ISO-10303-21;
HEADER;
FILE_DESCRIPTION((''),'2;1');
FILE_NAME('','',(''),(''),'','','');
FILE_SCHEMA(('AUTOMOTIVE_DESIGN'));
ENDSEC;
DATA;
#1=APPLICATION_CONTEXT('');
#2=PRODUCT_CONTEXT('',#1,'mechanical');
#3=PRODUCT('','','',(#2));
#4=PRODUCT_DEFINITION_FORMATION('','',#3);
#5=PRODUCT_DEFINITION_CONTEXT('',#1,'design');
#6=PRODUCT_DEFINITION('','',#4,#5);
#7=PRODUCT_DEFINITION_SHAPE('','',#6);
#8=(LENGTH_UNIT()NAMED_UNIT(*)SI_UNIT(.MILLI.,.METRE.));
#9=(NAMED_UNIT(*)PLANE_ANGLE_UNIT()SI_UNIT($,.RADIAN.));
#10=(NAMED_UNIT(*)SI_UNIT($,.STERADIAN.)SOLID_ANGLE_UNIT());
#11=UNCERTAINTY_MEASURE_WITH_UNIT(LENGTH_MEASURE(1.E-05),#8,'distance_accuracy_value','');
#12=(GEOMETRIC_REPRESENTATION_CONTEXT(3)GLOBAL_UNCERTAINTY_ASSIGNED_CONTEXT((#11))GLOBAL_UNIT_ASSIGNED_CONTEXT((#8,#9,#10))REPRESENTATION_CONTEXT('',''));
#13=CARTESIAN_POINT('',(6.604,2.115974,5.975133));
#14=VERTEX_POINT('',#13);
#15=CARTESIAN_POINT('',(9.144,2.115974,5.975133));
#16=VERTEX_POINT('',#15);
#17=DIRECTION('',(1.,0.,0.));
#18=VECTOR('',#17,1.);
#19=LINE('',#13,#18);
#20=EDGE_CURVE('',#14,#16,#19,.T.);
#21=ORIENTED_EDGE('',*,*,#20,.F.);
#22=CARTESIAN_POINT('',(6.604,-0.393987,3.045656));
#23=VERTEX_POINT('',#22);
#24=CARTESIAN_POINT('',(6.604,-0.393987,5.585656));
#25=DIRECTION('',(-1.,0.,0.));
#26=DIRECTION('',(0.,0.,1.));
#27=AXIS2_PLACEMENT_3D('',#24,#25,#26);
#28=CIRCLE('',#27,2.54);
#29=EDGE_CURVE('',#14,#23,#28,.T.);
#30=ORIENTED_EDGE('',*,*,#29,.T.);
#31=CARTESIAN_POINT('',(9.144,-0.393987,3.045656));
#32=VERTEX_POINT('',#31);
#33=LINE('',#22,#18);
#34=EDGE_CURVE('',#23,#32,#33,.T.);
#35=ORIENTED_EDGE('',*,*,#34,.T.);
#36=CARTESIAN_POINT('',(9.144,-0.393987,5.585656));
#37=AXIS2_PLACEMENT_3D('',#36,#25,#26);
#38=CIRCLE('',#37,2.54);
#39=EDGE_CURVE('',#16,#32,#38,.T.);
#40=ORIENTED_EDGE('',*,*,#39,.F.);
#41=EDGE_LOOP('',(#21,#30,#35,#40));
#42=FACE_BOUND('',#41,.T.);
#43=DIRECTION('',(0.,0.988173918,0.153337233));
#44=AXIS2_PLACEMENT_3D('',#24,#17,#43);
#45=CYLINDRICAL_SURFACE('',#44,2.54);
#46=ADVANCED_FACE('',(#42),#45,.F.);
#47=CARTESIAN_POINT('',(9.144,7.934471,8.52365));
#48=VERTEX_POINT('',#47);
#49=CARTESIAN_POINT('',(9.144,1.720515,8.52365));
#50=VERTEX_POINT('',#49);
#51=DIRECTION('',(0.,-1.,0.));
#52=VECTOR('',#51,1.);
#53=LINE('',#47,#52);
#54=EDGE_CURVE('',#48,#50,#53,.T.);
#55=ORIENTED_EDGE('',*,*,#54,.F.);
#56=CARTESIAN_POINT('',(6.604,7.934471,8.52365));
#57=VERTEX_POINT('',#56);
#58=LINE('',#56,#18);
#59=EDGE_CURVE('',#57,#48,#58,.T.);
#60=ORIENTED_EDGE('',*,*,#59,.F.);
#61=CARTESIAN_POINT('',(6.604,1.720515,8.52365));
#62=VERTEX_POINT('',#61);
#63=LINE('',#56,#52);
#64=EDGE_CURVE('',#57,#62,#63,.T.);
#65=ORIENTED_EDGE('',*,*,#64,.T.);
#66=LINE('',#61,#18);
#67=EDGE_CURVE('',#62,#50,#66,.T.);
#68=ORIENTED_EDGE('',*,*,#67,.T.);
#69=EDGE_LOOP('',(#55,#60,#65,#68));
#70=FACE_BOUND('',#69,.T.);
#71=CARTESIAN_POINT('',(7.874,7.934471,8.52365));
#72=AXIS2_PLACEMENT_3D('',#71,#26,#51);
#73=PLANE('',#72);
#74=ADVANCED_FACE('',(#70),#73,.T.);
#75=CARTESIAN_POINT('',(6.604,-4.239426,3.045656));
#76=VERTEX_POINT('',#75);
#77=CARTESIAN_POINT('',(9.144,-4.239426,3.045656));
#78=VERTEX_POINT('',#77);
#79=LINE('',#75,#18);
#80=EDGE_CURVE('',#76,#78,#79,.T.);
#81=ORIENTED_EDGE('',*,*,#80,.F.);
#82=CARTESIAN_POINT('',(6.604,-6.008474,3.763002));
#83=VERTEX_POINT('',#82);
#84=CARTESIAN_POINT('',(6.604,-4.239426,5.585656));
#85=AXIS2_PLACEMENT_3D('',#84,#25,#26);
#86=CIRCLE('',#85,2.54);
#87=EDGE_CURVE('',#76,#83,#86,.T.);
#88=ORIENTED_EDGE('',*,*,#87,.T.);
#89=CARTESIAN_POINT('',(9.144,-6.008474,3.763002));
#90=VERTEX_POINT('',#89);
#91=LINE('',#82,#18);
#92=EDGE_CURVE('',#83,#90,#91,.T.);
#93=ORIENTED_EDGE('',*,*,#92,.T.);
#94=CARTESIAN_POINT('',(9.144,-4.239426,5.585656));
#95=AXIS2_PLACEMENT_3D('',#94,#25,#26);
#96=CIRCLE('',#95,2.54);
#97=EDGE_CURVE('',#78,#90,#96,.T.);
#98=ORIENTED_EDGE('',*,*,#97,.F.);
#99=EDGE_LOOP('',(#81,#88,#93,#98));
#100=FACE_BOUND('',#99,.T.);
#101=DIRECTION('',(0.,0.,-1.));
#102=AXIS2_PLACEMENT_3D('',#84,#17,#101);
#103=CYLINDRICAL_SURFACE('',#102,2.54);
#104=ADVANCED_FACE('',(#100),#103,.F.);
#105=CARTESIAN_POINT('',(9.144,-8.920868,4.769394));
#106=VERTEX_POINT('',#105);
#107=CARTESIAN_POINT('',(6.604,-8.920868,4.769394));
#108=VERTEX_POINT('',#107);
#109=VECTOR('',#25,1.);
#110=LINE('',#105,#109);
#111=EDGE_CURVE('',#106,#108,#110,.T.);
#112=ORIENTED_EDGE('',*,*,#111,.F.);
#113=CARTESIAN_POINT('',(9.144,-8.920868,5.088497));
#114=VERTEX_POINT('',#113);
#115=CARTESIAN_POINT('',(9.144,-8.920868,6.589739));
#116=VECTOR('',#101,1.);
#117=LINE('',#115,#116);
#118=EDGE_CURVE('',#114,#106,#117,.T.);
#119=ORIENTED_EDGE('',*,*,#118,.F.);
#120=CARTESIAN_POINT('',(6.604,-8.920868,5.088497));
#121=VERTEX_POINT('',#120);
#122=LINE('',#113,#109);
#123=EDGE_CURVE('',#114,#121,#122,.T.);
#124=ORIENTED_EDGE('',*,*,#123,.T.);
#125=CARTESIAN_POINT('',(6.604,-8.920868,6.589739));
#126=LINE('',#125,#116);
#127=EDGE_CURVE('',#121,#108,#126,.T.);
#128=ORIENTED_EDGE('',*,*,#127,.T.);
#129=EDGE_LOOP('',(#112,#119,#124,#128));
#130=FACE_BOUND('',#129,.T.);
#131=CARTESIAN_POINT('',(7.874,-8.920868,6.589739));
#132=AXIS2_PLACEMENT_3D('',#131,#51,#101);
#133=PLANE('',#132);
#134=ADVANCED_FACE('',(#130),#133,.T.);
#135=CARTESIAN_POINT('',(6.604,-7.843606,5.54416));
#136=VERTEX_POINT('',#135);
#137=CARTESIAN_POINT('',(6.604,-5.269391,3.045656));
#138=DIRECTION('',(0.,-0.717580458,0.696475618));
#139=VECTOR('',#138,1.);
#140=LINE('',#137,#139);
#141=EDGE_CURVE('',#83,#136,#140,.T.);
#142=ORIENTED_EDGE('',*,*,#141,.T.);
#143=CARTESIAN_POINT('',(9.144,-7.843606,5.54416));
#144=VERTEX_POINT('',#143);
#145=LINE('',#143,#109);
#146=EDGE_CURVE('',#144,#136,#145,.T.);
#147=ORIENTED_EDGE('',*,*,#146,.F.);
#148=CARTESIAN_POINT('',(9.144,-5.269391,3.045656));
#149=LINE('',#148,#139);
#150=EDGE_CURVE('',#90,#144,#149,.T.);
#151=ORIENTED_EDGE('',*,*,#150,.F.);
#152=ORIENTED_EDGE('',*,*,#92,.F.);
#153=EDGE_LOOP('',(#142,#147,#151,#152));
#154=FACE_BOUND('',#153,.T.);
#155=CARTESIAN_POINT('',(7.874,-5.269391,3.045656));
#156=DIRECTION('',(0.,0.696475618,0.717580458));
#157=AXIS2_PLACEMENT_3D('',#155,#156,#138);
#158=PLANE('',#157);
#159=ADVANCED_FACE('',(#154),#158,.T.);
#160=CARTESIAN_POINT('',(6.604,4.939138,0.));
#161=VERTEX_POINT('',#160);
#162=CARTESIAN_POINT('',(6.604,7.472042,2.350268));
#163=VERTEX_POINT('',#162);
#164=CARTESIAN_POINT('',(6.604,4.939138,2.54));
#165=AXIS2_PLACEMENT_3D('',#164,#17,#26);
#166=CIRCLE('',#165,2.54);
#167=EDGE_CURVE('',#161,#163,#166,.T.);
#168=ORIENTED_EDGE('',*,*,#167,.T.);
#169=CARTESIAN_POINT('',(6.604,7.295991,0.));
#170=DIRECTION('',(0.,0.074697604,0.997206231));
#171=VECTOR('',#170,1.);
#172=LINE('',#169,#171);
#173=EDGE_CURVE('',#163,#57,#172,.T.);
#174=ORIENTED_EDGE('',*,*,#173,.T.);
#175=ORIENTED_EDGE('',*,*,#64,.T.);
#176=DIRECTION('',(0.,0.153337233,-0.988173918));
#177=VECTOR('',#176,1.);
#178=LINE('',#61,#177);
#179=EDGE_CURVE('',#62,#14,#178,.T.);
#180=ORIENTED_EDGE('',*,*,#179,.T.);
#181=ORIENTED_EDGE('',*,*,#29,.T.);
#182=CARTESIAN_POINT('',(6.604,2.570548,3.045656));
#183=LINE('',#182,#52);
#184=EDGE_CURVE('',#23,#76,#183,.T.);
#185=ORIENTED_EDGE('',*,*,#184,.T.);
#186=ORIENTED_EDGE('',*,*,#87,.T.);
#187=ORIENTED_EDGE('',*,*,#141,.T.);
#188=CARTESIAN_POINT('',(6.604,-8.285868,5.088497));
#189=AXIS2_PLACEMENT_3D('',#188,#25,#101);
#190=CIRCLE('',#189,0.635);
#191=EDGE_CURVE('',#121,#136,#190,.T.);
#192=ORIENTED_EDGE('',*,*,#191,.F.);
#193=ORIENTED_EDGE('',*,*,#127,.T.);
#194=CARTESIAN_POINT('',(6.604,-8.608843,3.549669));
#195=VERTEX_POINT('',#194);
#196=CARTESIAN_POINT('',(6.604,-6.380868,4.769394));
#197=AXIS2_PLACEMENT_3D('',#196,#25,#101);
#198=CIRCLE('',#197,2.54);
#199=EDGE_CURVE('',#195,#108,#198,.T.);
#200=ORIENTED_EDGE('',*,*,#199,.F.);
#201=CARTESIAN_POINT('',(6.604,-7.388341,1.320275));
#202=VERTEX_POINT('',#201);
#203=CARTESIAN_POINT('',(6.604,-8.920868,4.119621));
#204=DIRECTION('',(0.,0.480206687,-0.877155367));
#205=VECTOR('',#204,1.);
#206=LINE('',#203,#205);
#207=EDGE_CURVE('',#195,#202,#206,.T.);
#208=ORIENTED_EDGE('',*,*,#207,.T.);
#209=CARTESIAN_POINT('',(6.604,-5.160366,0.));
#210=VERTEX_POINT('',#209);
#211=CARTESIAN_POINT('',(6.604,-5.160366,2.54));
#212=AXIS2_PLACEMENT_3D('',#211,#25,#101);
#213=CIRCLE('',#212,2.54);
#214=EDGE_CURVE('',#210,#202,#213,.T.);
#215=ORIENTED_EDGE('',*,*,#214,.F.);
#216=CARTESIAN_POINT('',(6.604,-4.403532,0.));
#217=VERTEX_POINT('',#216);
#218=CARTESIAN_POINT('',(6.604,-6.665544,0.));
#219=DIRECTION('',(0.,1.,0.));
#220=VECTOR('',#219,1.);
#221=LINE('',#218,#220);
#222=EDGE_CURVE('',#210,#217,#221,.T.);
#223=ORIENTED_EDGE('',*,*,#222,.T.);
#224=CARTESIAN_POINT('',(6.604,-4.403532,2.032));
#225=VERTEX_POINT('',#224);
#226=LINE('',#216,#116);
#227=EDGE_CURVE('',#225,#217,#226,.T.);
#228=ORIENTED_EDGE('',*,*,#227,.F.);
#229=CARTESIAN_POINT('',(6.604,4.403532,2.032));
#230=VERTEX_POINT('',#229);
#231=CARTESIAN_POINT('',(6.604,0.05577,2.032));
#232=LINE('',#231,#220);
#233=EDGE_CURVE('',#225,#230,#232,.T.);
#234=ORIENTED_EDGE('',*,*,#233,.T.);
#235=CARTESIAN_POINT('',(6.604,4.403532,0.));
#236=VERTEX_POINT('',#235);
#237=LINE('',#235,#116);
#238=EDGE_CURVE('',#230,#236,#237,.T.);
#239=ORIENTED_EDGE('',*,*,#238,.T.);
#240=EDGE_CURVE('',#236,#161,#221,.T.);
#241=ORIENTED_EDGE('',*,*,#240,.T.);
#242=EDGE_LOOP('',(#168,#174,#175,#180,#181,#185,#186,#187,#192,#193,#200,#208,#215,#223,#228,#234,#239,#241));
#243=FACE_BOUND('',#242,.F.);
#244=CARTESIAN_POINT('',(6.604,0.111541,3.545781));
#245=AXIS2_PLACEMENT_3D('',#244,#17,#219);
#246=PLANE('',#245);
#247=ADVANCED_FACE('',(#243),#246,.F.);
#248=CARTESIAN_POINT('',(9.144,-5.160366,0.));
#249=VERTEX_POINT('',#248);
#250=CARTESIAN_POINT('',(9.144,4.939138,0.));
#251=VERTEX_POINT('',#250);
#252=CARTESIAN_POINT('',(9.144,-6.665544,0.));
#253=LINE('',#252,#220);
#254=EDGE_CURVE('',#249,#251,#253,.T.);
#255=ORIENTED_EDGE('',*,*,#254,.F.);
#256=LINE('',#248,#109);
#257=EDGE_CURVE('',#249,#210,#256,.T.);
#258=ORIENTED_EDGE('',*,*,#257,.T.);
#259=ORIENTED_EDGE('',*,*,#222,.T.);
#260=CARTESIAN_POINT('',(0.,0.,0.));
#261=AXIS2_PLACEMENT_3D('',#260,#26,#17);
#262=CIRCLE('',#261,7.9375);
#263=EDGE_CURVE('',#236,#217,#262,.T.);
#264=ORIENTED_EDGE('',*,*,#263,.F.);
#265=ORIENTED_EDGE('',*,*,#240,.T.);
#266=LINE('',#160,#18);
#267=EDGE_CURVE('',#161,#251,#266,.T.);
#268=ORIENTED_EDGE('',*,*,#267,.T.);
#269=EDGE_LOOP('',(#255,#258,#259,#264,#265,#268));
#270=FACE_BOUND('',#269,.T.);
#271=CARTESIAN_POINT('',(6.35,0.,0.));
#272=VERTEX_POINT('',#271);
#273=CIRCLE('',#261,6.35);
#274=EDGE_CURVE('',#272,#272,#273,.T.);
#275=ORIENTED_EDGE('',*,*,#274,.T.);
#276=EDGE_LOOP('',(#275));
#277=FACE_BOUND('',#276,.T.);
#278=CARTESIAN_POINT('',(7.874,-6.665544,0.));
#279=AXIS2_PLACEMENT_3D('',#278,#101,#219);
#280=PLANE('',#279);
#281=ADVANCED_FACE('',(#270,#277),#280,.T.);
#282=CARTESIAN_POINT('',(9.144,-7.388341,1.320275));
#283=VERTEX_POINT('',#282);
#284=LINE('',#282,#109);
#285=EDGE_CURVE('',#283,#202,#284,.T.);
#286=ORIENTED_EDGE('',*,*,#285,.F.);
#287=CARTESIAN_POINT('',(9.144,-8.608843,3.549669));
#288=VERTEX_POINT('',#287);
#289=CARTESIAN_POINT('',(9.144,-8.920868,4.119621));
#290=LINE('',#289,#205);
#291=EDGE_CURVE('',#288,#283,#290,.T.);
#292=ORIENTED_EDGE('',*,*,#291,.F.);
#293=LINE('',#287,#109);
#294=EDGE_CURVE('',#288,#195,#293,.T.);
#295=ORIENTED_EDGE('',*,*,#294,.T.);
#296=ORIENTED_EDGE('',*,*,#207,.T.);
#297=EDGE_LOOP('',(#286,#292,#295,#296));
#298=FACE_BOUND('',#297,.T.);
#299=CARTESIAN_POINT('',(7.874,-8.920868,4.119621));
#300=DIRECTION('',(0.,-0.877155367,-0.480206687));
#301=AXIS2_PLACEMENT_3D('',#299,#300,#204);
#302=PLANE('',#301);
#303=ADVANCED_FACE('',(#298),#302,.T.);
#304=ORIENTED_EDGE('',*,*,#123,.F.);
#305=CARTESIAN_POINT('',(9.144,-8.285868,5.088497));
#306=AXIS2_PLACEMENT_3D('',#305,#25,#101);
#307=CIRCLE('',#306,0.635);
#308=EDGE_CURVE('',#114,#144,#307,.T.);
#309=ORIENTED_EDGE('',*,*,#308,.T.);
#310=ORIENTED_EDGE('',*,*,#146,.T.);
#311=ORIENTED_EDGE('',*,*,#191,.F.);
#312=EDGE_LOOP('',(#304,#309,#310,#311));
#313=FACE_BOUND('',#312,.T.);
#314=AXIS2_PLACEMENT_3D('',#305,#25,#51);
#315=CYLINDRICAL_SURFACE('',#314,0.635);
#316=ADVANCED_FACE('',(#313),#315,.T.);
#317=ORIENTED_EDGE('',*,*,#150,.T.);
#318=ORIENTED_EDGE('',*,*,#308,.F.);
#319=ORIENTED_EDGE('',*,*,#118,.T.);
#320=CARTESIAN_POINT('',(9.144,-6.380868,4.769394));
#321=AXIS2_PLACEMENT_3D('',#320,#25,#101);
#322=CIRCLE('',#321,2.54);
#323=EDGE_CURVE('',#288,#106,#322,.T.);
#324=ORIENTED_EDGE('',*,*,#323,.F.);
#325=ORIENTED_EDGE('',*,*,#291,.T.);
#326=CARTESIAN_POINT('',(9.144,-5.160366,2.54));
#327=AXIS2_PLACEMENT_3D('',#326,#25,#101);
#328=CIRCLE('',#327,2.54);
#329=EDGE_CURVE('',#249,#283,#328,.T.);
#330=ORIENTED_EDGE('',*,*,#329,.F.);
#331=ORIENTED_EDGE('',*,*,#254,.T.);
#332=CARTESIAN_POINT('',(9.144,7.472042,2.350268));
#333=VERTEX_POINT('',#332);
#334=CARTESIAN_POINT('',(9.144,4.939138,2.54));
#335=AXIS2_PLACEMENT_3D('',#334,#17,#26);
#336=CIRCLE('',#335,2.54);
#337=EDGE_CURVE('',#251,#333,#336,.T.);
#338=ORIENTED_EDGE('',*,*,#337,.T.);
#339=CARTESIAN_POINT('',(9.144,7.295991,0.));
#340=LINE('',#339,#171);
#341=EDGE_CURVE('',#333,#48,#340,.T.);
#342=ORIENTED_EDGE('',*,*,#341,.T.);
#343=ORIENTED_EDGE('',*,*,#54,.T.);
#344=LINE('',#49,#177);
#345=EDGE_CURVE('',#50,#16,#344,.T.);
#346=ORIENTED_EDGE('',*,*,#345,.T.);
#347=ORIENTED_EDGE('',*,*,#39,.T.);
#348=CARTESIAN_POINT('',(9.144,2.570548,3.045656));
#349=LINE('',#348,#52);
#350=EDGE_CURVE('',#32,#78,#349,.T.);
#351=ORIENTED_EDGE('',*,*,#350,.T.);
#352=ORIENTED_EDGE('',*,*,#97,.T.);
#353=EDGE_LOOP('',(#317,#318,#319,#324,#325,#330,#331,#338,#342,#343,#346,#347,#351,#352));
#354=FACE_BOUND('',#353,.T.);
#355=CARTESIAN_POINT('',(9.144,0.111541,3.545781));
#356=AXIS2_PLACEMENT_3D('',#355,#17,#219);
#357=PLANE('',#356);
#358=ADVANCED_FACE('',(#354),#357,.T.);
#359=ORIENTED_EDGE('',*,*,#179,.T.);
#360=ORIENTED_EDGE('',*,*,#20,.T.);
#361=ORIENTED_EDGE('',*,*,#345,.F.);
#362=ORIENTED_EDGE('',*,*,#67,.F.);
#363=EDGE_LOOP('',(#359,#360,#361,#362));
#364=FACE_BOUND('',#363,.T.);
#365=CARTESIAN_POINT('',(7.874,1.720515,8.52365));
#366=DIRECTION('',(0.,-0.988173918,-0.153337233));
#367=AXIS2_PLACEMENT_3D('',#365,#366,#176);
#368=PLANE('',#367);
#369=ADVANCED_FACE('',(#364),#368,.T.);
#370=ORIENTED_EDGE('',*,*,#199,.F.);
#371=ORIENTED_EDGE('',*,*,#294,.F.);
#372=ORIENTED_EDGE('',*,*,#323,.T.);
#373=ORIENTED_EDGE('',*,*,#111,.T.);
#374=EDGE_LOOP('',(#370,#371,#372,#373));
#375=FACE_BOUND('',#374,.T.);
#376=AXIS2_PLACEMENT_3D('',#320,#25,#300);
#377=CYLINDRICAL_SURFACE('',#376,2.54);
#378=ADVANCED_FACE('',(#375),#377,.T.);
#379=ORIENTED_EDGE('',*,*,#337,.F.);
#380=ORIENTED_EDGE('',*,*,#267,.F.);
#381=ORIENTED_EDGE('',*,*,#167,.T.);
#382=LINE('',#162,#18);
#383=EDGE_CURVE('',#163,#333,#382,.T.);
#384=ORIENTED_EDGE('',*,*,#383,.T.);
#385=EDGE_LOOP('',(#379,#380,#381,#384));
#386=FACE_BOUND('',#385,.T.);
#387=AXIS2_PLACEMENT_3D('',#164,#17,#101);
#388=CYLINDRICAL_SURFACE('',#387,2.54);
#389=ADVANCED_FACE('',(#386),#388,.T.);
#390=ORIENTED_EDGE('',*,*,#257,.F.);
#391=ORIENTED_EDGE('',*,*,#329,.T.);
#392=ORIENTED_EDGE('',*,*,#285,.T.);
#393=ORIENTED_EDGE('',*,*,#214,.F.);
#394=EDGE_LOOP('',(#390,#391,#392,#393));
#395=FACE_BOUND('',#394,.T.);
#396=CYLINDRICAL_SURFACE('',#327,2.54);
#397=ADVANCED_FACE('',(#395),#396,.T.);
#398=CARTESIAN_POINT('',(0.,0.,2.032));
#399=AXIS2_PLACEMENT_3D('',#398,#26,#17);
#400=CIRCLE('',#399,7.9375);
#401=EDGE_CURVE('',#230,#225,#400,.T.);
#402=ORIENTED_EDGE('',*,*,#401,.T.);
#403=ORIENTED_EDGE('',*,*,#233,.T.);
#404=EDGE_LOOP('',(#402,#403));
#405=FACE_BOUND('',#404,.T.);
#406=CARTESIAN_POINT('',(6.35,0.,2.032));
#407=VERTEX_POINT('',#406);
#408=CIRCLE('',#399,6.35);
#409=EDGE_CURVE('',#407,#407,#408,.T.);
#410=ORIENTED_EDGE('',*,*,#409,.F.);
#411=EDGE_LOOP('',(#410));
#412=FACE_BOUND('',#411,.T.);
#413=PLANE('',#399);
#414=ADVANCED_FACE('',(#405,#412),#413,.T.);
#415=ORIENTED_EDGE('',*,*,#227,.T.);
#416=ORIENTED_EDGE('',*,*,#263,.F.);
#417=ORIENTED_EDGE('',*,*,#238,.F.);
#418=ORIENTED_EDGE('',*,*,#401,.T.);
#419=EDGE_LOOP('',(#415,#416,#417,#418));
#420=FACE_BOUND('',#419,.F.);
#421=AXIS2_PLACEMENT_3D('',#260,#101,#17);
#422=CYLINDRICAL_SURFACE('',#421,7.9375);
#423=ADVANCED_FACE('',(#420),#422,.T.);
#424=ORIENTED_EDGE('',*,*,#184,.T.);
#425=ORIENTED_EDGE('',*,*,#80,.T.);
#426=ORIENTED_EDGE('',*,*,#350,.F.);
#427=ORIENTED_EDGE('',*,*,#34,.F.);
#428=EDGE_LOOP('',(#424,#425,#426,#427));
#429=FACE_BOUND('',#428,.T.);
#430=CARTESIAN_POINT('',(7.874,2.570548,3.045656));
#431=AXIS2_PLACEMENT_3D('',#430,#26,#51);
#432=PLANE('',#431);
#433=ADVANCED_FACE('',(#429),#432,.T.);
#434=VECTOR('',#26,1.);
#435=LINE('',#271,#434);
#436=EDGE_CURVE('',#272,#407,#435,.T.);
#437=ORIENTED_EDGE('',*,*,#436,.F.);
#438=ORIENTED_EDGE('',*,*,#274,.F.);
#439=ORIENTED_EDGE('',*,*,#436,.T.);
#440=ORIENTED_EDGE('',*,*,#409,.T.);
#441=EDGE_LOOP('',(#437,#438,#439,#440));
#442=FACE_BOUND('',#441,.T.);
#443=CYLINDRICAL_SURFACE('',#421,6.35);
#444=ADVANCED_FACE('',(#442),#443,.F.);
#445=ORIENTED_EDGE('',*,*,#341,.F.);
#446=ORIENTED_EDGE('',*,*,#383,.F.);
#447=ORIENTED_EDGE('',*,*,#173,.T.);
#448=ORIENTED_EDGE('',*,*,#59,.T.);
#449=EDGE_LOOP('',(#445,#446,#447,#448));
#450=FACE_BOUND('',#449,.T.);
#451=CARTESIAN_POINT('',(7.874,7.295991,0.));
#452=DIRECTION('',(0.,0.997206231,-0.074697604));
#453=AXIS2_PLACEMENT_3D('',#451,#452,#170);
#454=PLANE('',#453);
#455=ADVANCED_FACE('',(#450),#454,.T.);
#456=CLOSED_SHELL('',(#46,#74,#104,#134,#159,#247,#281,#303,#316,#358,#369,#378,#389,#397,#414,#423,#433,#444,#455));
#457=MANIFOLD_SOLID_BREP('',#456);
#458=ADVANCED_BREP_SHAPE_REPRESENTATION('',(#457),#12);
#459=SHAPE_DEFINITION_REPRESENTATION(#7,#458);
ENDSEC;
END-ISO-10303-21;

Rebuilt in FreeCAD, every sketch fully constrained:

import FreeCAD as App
import Part
import Sketcher
from FreeCAD import Vector
Q = App.Units.Quantity


def edges_at(feature, points):
    """Names of the edges that pass closest to the given points."""
    edges = feature.Shape.Edges
    near = lambda p: min(range(len(edges)), key=lambda i: edges[i].distToShape(Part.Vertex(*p))[0])
    return sorted({f"Edge{near(p) + 1}" for p in points})

doc = App.newDocument("Part")
body = doc.addObject("PartDesign::Body", "Body")

sketch1 = body.newObject("Sketcher::SketchObject", "Sketch")
sketch1.AttachmentSupport = (doc.getObject("XY_Plane"), [""])
sketch1.MapMode = "FlatFace"
sketch1.addGeometry([
    Part.Circle(Vector(0, 0, 0), Vector(0, 0, 1), 8),
    Part.Circle(Vector(0, 0, 0), Vector(0, 0, 1), 6),
], False)
sketch1.addConstraint([
    Sketcher.Constraint("Coincident", 0, 3, -1, 1),
    Sketcher.Constraint("Coincident", 1, 3, -1, 1),
    Sketcher.Constraint("Diameter", 1, Q("0.5 in")),
    Sketcher.Constraint("Diameter", 0, Q("0.625 in")),
])
pad1 = body.newObject("PartDesign::Pad", "Pad")
pad1.Profile = sketch1
pad1.Length = Q("0.08 in")

sketch2 = body.newObject("Sketcher::SketchObject", "Sketch001")
sketch2.AttachmentSupport = (doc.getObject("YZ_Plane"), [""])
sketch2.MapMode = "FlatFace"
sketch2.AttachmentOffset = App.Placement(Vector(0, 0, 0.31 * 25.4), App.Rotation())
sketch2.addGeometry([
    Part.LineSegment(Vector(-6.7, 0, 0), Vector(7.3, 0, 0)),
    Part.LineSegment(Vector(7.3, 0, 0), Vector(7.9, 8.5, 0)),
    Part.LineSegment(Vector(7.9, 8.5, 0), Vector(1.7, 8.5, 0)),
    Part.LineSegment(Vector(1.7, 8.5, 0), Vector(2.6, 3, 0)),
    Part.LineSegment(Vector(2.6, 3, 0), Vector(-5.3, 3, 0)),
    Part.LineSegment(Vector(-5.3, 3, 0), Vector(-8.9, 6.6, 0)),
    Part.LineSegment(Vector(-8.9, 6.6, 0), Vector(-8.9, 4.1, 0)),
    Part.LineSegment(Vector(-8.9, 4.1, 0), Vector(-6.7, 0, 0)),
], False)
sketch2.addConstraint([
    Sketcher.Constraint("Coincident", 0, 2, 1, 1),
    Sketcher.Constraint("Coincident", 1, 2, 2, 1),
    Sketcher.Constraint("Coincident", 2, 2, 3, 1),
    Sketcher.Constraint("Coincident", 3, 2, 4, 1),
    Sketcher.Constraint("Coincident", 4, 2, 5, 1),
    Sketcher.Constraint("Coincident", 5, 2, 6, 1),
    Sketcher.Constraint("Coincident", 6, 2, 7, 1),
    Sketcher.Constraint("Coincident", 7, 2, 0, 1),
    Sketcher.Constraint("Horizontal", 0),
    Sketcher.Constraint("Horizontal", 2),
    Sketcher.Constraint("Horizontal", 4),
    Sketcher.Constraint("Vertical", 6),
    Sketcher.Constraint("PointOnObject", 0, 2, -1),
    Sketcher.Constraint("DistanceX", 4, 2, 0, 2, Q("0.4947001 in")),
    Sketcher.Constraint("DistanceX", 4, 2, 4, 1, 7.839939),
    Sketcher.Constraint("Distance", 1, 8.54753),
    Sketcher.Constraint("Distance", 7, 4.696569),
    Sketcher.Constraint("DistanceX", 0, 1, 0, 2, 13.961535),
    Sketcher.Constraint("DistanceX", 2, 2, 2, 1, 6.213956),
    Sketcher.Constraint("DistanceY", 6, 2, 6, 1, 2.470118),
    Sketcher.Constraint("DistanceX", -1, 1, 0, 2, 7.295991),
    Sketcher.Constraint("DistanceX", -1, 1, 1, 2, 7.934471),
    Sketcher.Constraint("DistanceY", -1, 1, 5, 2, 6.589739),
    Sketcher.Constraint("Distance", 3, 5.543553),
])
pad2 = body.newObject("PartDesign::Pad", "Pad001")
pad2.Profile = sketch2
pad2.Length = Q("0.1 in")
pad2.Midplane = True
doc.recompute()

fillet = body.newObject("PartDesign::Fillet", "Fillet")
fillet.Base = (pad2, edges_at(pad2, [
    (7.874, 2.571, 3.046),
    (7.874, -5.269, 3.046),
    (7.874, 7.296, 0),
    (7.874, -6.666, 0),
    (7.874, -8.921, 4.12),
]))
fillet.Radius = Q("0.1 in")
doc.recompute()

fillet2 = body.newObject("PartDesign::Fillet", "Fillet001")
fillet2.Base = (fillet, edges_at(fillet, [(7.874, -8.921, 6.59)]))
fillet2.Radius = Q("0.025 in")

doc.recompute()
